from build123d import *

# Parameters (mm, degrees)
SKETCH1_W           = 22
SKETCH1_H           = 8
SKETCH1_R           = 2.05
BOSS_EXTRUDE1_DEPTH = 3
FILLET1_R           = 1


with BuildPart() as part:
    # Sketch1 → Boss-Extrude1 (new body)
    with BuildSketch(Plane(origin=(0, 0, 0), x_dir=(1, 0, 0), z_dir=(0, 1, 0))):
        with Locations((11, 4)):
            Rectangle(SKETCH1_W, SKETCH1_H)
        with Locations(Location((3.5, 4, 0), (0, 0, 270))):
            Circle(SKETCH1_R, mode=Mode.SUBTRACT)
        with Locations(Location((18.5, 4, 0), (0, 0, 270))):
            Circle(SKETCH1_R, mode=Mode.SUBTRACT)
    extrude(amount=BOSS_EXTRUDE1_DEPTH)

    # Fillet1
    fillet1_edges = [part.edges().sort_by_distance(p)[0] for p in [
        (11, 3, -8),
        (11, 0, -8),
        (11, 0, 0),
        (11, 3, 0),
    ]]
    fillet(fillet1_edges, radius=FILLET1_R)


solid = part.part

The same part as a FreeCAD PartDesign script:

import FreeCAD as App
import Part
import Sketcher

V = App.Vector
Q = App.Units.Quantity


def edges_at(feature, points):
    """Names of the edges that pass closest to the given points."""
    edges = feature.Shape.Edges
    near = lambda p: min(range(len(edges)), key=lambda i: edges[i].distToShape(Part.Vertex(*p))[0])
    return sorted({f"Edge{near(p) + 1}" for p in points})

doc = App.newDocument("Part")
body = doc.addObject("PartDesign::Body", "Body")

# Sketch on XZ plane
sketch1 = doc.addObject("Sketcher::SketchObject", "Sketch")
body.addObject(sketch1)
sketch1.AttachmentSupport = (doc.XZ_Plane, [""])
sketch1.MapMode = "FlatFace"
sketch1.addGeometry([
    Part.LineSegment(V(0, -8, 0), V(0, 0, 0)),  # 0
    Part.LineSegment(V(0, 0, 0), V(22, 0, 0)),  # 1
    Part.LineSegment(V(22, 0, 0), V(22, -8, 0)),  # 2
    Part.LineSegment(V(22, -8, 0), V(0, -8, 0)),  # 3
    Part.Circle(V(3.5, -4, 0), V(0, 0, 1), 2),  # 4
    Part.Circle(V(18.5, -4, 0), V(0, 0, 1), 2),  # 5
], False)
sketch1.addConstraint([
    Sketcher.Constraint("Coincident", 0, 2, 1, 1),
    Sketcher.Constraint("Coincident", 1, 2, 2, 1),
    Sketcher.Constraint("Coincident", 2, 2, 3, 1),
    Sketcher.Constraint("Coincident", 3, 2, 0, 1),
    Sketcher.Constraint("Vertical", 0),
    Sketcher.Constraint("Horizontal", 1),
    Sketcher.Constraint("Vertical", 2),
    Sketcher.Constraint("Horizontal", 3),
    Sketcher.Constraint("Coincident", 0, 2, -1, 1),
    Sketcher.Constraint("Equal", 4, 5),
    Sketcher.Constraint("Horizontal", 4, 3, 5, 3),
    Sketcher.Constraint("Diameter", 4, Q("4.1 mm")),
    Sketcher.Constraint("DistanceX", 1, 1, 1, 2, Q("22 mm")),
    Sketcher.Constraint("DistanceY", 0, 1, 0, 2, Q("8 mm")),
    Sketcher.Constraint("DistanceY", 4, 3, -1, 1, Q("4 mm")),
    Sketcher.Constraint("DistanceX", 4, 3, 5, 3, Q("15 mm")),
    Sketcher.Constraint("DistanceX", -1, 1, 4, 3, Q("3.5 mm")),
])
pad1 = doc.addObject("PartDesign::Pad", "Pad")
body.addObject(pad1)
pad1.Profile = sketch1
pad1.Length = 3
pad1.Reversed = True
doc.recompute()

fillet = doc.addObject("PartDesign::Fillet", "Fillet")
body.addObject(fillet)
fillet.Base = (pad1, edges_at(pad1, [
    (11, 3, -8),
    (11, 0, -8),
    (11, 0, 0),
    (11, 3, 0),
]))
fillet.Radius = 1

doc.recompute()
